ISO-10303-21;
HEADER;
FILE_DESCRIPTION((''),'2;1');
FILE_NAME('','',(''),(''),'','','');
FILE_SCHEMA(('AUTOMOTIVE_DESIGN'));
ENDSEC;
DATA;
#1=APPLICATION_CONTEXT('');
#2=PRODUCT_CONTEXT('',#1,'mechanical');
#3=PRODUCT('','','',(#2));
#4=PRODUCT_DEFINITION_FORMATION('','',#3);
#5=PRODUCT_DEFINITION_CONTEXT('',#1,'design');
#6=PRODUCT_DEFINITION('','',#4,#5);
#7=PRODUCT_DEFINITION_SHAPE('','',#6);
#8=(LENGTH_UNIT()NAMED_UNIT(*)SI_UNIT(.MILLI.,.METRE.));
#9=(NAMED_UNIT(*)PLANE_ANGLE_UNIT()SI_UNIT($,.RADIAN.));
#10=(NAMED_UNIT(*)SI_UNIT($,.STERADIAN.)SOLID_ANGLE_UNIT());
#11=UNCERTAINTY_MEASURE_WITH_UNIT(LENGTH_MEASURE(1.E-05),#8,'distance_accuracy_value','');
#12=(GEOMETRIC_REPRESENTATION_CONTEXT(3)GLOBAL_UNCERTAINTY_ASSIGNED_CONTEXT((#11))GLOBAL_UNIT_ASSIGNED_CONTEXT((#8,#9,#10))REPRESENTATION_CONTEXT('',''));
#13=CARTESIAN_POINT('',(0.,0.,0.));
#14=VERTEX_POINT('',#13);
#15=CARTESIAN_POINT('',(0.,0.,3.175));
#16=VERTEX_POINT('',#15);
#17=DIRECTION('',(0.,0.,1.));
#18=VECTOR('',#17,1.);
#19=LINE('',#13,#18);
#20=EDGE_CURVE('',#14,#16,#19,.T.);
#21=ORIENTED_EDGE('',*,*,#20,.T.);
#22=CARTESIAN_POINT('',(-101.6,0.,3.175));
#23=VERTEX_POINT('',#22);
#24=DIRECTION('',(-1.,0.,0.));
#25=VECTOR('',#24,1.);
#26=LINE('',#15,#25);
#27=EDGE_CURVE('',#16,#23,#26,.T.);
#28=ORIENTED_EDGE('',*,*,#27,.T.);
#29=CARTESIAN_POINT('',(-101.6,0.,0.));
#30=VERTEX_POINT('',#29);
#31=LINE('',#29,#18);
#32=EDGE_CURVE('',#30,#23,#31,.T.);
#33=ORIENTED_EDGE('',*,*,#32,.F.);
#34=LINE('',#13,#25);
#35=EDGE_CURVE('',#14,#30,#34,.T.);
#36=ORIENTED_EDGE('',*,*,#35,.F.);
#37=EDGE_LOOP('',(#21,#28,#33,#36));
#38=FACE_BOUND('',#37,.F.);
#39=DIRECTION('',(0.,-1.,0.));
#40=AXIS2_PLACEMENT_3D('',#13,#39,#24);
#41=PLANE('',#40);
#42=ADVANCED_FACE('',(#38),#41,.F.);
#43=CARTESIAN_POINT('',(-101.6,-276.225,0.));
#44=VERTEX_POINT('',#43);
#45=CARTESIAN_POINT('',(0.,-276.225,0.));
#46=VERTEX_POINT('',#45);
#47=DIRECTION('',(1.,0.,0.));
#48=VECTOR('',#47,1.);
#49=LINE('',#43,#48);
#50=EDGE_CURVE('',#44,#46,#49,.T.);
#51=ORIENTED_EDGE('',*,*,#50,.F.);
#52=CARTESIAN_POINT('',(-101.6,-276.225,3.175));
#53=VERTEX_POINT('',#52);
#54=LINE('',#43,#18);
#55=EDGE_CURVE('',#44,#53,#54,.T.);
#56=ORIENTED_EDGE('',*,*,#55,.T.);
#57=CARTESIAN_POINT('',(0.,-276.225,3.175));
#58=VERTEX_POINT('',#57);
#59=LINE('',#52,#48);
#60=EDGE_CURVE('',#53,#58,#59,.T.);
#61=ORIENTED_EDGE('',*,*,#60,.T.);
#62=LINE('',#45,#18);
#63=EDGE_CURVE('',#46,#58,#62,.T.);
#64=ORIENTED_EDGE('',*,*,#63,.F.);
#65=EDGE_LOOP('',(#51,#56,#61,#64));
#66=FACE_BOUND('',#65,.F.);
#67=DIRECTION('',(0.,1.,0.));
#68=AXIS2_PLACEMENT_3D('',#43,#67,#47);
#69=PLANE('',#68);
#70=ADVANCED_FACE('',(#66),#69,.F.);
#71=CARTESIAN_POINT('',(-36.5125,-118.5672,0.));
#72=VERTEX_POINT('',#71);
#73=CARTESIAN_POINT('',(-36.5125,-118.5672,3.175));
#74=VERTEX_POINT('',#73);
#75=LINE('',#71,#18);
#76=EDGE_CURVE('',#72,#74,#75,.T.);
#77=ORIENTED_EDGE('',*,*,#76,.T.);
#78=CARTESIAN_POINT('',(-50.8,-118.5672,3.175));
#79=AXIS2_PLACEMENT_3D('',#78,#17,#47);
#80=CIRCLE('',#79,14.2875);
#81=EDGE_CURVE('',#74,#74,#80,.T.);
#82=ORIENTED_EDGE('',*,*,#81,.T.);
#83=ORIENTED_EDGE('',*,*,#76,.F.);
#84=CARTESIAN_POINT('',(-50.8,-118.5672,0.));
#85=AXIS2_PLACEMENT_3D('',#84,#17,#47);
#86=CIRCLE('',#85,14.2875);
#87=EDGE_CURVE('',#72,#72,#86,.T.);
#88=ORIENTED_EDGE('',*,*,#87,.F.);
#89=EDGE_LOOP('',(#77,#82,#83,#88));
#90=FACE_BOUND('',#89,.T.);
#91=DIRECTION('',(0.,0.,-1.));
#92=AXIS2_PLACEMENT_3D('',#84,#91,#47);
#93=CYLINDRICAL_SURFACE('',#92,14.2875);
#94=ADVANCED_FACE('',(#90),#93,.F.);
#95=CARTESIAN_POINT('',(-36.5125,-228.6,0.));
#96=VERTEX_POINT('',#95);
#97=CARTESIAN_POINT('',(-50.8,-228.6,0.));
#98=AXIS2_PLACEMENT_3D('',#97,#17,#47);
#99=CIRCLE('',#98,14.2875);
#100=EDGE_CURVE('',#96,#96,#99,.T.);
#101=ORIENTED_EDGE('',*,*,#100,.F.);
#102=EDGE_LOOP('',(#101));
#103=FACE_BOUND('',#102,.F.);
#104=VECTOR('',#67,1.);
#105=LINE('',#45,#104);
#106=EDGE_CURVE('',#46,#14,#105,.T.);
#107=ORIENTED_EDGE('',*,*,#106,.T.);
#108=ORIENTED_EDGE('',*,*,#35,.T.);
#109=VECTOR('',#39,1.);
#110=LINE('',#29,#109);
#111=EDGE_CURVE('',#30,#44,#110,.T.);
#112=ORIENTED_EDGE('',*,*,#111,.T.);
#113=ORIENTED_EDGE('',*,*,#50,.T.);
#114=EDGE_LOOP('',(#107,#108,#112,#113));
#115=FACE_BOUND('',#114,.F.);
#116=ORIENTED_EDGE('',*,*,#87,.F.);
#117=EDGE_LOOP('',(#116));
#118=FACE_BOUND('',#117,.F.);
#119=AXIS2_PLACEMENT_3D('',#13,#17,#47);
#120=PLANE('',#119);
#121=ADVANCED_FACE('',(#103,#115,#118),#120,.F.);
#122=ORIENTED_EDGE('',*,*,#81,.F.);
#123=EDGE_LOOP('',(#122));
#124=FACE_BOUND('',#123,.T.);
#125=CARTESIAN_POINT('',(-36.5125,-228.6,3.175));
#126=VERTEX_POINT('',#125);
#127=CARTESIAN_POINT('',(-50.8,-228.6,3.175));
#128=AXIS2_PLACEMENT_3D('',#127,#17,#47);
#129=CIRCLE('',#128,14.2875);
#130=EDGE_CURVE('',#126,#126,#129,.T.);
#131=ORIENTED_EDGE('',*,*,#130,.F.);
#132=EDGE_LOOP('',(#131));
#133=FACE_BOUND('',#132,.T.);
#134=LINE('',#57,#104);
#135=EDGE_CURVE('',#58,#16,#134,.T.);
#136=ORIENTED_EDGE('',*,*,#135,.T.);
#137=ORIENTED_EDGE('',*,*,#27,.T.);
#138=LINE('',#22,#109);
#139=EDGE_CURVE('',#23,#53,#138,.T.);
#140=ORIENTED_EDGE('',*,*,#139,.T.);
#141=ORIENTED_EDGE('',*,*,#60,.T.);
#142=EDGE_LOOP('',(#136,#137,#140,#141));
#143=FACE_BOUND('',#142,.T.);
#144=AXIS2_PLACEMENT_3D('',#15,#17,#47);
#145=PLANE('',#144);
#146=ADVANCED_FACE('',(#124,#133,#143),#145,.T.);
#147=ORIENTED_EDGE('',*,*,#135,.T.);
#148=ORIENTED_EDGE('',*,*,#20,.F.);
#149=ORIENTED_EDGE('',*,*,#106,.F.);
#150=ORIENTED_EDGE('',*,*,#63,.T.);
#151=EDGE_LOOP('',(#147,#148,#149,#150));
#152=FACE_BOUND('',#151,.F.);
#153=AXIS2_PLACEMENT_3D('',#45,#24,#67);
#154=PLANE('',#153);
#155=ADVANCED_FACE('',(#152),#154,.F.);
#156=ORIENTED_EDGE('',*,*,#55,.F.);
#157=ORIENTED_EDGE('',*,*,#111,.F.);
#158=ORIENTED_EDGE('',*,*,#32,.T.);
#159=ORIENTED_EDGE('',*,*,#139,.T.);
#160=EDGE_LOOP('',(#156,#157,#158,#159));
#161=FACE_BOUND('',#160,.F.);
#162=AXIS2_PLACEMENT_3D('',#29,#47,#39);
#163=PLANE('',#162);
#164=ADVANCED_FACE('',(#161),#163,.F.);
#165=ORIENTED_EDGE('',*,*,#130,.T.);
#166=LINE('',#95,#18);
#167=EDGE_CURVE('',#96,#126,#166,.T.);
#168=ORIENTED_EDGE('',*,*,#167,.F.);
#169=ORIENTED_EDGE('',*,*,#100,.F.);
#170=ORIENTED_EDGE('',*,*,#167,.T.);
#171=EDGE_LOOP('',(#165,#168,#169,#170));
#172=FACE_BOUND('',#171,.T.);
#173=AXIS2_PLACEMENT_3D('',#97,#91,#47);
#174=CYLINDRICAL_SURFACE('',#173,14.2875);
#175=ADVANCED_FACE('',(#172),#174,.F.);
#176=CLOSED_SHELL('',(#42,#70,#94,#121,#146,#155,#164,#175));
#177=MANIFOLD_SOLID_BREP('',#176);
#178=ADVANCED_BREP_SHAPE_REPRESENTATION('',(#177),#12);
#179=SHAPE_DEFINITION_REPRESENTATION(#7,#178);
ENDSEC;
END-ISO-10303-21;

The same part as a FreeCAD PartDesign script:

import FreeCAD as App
import Part
import Sketcher
from FreeCAD import Vector
Q = App.Units.Quantity


def add_polygon(sketch, points):
    """Adds a closed chain of lines whose ends are joined by coincident constraints."""
    first, n = sketch.GeometryCount, len(points)
    for a, b in zip(points, points[1:] + points[:1]):
        sketch.addGeometry(Part.LineSegment(App.Vector(*a, 0), App.Vector(*b, 0)), False)
    for i in range(n):
        sketch.addConstraint(Sketcher.Constraint("Coincident", first + i, 2, first + (i + 1) % n, 1))

doc = App.newDocument("Part")
body = doc.addObject("PartDesign::Body", "Body")

# Sketch on XY plane
sketch1 = body.newObject("Sketcher::SketchObject", "Sketch")
sketch1.AttachmentSupport = (doc.getObject("XY_Plane"), [""])
sketch1.MapMode = "FlatFace"
add_polygon(sketch1, [(0, -276), (0, 0), (-102, 0), (-102, -276)])  # lines 0-3
sketch1.addGeometry(Part.Circle(Vector(-51, -229, 0), Vector(0, 0, 1), 14), False)  # 4
sketch1.addGeometry(Part.Circle(Vector(-51, -119, 0), Vector(0, 0, 1), 14), False)  # 5
sketch1.addConstraint([
    Sketcher.Constraint("Vertical", 0),
    Sketcher.Constraint("Horizontal", 1),
    Sketcher.Constraint("Vertical", 2),
    Sketcher.Constraint("Horizontal", 3),
    Sketcher.Constraint("Coincident", 0, 2, -1, 1),
    Sketcher.Constraint("Equal", 4, 5),
    Sketcher.Constraint("Vertical", 4, 3, 5, 3),
    Sketcher.Constraint("DistanceX", 1, 2, 1, 1, Q("4 in")),
    Sketcher.Constraint("Diameter", 4, Q("1.125 in")),
    Sketcher.Constraint("DistanceX", 4, 3, -1, 1, Q("2 in")),
    Sketcher.Constraint("DistanceY", 0, 1, 0, 2, Q("10.875 in")),
    Sketcher.Constraint("DistanceY", 4, 3, -1, 1, Q("9 in")),
    Sketcher.Constraint("DistanceY", 4, 3, 5, 3, Q("4.332 in")),
])
pad1 = body.newObject("PartDesign::Pad", "Pad")
pad1.Profile = sketch1
pad1.Length = Q("0.125 in")

doc.recompute()
